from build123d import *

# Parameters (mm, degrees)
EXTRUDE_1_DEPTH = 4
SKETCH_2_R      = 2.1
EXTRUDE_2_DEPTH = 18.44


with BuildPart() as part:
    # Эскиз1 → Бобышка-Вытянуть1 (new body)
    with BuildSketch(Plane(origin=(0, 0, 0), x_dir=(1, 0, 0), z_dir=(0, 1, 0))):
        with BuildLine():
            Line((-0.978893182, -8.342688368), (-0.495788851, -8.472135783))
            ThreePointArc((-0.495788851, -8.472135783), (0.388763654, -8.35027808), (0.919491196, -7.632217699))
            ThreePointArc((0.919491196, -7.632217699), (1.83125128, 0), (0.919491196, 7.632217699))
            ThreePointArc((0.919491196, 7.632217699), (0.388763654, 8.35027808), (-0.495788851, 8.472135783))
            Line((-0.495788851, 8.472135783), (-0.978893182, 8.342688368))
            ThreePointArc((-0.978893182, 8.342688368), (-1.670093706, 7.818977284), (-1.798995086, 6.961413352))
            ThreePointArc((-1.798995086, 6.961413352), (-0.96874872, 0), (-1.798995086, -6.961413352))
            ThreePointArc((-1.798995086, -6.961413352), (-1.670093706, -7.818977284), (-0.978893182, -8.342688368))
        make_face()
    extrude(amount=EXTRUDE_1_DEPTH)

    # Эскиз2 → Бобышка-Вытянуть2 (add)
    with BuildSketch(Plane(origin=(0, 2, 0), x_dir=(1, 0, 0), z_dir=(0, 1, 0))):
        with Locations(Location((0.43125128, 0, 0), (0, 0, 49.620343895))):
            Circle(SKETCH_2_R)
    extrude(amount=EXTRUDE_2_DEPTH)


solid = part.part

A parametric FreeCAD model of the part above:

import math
import FreeCAD as App
import Part
import Sketcher

V = App.Vector
Q = App.Units.Quantity

doc = App.newDocument("Part")
body = doc.addObject("PartDesign::Body", "Body")

sketch1 = body.newObject("Sketcher::SketchObject", "Sketch")
sketch1.AttachmentSupport = (doc.getObject("XZ_Plane"), [""])
sketch1.MapMode = "FlatFace"
sketch1.addGeometry([
    Part.LineSegment(V(-1, 8.3, 0), V(-0.5, 8.5, 0)),
    Part.ArcOfCircle(Part.Circle(V(-0.2, 7.4, 0), V(0, 0, 1), 1.2), math.radians(14), math.radians(105)),
    Part.ArcOfCircle(Part.Circle(V(-30.6, 0, 0), V(0, 0, 1), 32.4), math.radians(-14), math.radians(14)),
    Part.ArcOfCircle(Part.Circle(V(-0.2, -7.4, 0), V(0, 0, 1), 1.2), math.radians(-105), math.radians(-14)),
    Part.LineSegment(V(-0.5, -8.5, 0), V(-1, -8.3, 0)),
    Part.ArcOfCircle(Part.Circle(V(-0.7, -7.2, 0), V(0, 0, 1), 1.1), math.radians(166), math.radians(255)),
    Part.ArcOfCircle(Part.Circle(V(-30.6, 0, 0), V(0, 0, 1), 29.6), math.radians(-14), math.radians(14)),
    Part.ArcOfCircle(Part.Circle(V(-0.7, 7.2, 0), V(0, 0, 1), 1.1), math.radians(105), math.radians(194)),
], False)
sketch1.addConstraint([
    Sketcher.Constraint("Tangent", 0, 2, 1, 2),
    Sketcher.Constraint("Tangent", 1, 1, 2, 2),
    Sketcher.Constraint("Tangent", 2, 1, 3, 2),
    Sketcher.Constraint("Tangent", 3, 1, 4, 1),
    Sketcher.Constraint("Tangent", 4, 2, 5, 2),
    Sketcher.Constraint("Tangent", 5, 1, 6, 1),
    Sketcher.Constraint("Tangent", 6, 2, 7, 2),
    Sketcher.Constraint("Tangent", 7, 1, 0, 1),
    Sketcher.Constraint("Coincident", 6, 3, 2, 3),
    Sketcher.Constraint("Equal", 1, 3),
    Sketcher.Constraint("Equal", 3, 5),
    Sketcher.Constraint("Equal", 5, 7),
    Sketcher.Constraint("Symmetric", 1, 3, 3, 3, -1),
    Sketcher.Constraint("Vertical", 5, 3, 7, 3),
    Sketcher.Constraint("Radius", 2, 32.4),
    Sketcher.Constraint("Radius", 6, 29.6),
    Sketcher.Constraint("Angle", 0, Q("15 deg")),
    Sketcher.Constraint("Radius", 1, 1.15),
    Sketcher.Constraint("DistanceX", 2, 3, 1, 3, 30.370602),
    Sketcher.Constraint("DistanceX", 2, 3, -1, 1, 30.568749),
])
pad1 = body.newObject("PartDesign::Pad", "Pad")
pad1.Profile = sketch1
pad1.Length = 4
pad1.Reversed = True

sketch2 = body.newObject("Sketcher::SketchObject", "Sketch001")
sketch2.AttachmentSupport = (doc.getObject("XZ_Plane"), [""])
sketch2.MapMode = "FlatFace"
sketch2.AttachmentOffset = App.Placement(V(0, 0, -2), App.Rotation())
sketch2.addGeometry(Part.Circle(V(0.4, 0, 0), V(0, 0, 1), 2.1), False)
sketch2.addConstraint([
    Sketcher.Constraint("PointOnObject", 0, 3, -1),
    Sketcher.Constraint("Diameter", 0, 4.2),
    Sketcher.Constraint("DistanceX", -1, 1, 0, 3, 0.431251),
])
pad2 = body.newObject("PartDesign::Pad", "Pad001")
pad2.Profile = sketch2
pad2.Length = 18.44
pad2.Reversed = True

doc.recompute()
